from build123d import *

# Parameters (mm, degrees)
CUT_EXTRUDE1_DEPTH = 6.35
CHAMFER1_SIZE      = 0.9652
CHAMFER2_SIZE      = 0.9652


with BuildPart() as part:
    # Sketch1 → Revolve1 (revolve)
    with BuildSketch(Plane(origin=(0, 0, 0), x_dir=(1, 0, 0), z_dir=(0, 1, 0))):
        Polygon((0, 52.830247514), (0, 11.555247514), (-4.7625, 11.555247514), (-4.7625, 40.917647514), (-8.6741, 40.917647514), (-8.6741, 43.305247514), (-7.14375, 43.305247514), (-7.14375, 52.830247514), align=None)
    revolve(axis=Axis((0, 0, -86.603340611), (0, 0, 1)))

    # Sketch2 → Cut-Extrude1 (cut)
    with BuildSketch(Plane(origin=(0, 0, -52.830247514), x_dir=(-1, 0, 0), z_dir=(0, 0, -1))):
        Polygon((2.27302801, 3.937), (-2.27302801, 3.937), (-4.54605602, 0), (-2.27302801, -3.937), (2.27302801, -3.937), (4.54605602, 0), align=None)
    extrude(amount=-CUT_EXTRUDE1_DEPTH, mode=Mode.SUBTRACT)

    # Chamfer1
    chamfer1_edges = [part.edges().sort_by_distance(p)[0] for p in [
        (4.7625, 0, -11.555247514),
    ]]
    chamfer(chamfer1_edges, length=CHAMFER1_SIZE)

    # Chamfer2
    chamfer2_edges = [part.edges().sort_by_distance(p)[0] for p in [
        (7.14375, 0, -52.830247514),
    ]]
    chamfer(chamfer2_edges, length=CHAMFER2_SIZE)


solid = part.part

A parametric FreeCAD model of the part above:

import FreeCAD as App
import Part
import Sketcher

V = App.Vector
Q = App.Units.Quantity


def edges_at(feature, points):
    """Names of the edges that pass closest to the given points."""
    edges = feature.Shape.Edges
    near = lambda p: min(range(len(edges)), key=lambda i: edges[i].distToShape(Part.Vertex(*p))[0])
    return sorted({f"Edge{near(p) + 1}" for p in points})


def add_polygon(sketch, points):
    """Adds a closed chain of lines whose ends are joined by coincident constraints."""
    first, n = sketch.GeometryCount, len(points)
    for a, b in zip(points, points[1:] + points[:1]):
        sketch.addGeometry(Part.LineSegment(App.Vector(*a, 0), App.Vector(*b, 0)), False)
    for i in range(n):
        sketch.addConstraint(Sketcher.Constraint("Coincident", first + i, 2, first + (i + 1) % n, 1))

doc = App.newDocument("Part")
params = doc.addObject("Spreadsheet::Sheet", "Params")
for row, (alias, value) in enumerate([
    ("sketch1_width", "0.28125 in"),
    ("sketch1_width2", "0.154 in"),
    ("sketch1_width3", "0.1875 in"),
    ("sketch1_height", "1.625 in"),
    ("sketch1_height2", "0.375 in"),
    ("revolution_angle", "360 deg"),
    ("pocket1_length", "0.25 in"),
    ("chamfer_size", "0.038 in"),
    ("chamfer2_size", "0.038 in"),
], start=1):
    params.set(f"A{row}", alias)
    params.set(f"B{row}", "=" + value)
    params.setAlias(f"B{row}", alias)

body = doc.addObject("PartDesign::Body", "Body")

sketch1 = body.newObject("Sketcher::SketchObject", "Sketch")
sketch1.AttachmentSupport = (doc.getObject("XZ_Plane"), [""])
sketch1.MapMode = "FlatFace"
add_polygon(sketch1, [(0, -11.6), (0, -52.8), (-7.1, -52.8), (-7.1, -43.3), (-8.7, -43.3), (-8.7, -40.9), (-4.8, -40.9), (-4.8, -11.6)])
sketch1.addConstraint([
    Sketcher.Constraint("Vertical", 0),
    Sketcher.Constraint("Horizontal", 1),
    Sketcher.Constraint("Vertical", 2),
    Sketcher.Constraint("Horizontal", 3),
    Sketcher.Constraint("Vertical", 4),
    Sketcher.Constraint("Horizontal", 5),
    Sketcher.Constraint("Vertical", 6),
    Sketcher.Constraint("Horizontal", 7),
    Sketcher.Constraint("PointOnObject", 0, 2, -2),
    Sketcher.Constraint("DistanceX", 1, 2, 1, 1, Q("0.28125 in")),
    Sketcher.Constraint("DistanceX", 5, 1, 5, 2, Q("0.154 in")),
    Sketcher.Constraint("DistanceX", 7, 1, 7, 2, Q("0.1875 in")),
    Sketcher.Constraint("DistanceY", 0, 2, 0, 1, Q("1.625 in")),
    Sketcher.Constraint("DistanceY", 2, 1, 2, 2, Q("0.375 in")),
    Sketcher.Constraint("DistanceY", 4, 1, 4, 2, Q("0.094 in")),
    Sketcher.Constraint("DistanceY", 0, 2, -1, 1, 52.830248),
])
sketch1.setExpression("Constraints[17]", "Params.sketch1_width")
sketch1.setExpression("Constraints[18]", "Params.sketch1_width2")
sketch1.setExpression("Constraints[19]", "Params.sketch1_width3")
sketch1.setExpression("Constraints[20]", "Params.sketch1_height")
sketch1.setExpression("Constraints[21]", "Params.sketch1_height2")
revolution = body.newObject("PartDesign::Revolution", "Revolution")
revolution.Profile = sketch1
revolution.ReferenceAxis = (sketch1, ["V_Axis"])
revolution.setExpression("Angle", "Params.revolution_angle")

sketch2 = body.newObject("Sketcher::SketchObject", "Sketch001")
sketch2.AttachmentSupport = (doc.getObject("XY_Plane"), [""])
sketch2.MapMode = "FlatFace"
sketch2.AttachmentOffset = App.Placement(V(0, 0, -52.830248), App.Rotation())
add_polygon(sketch2, [(-2.3, 3.9), (2.3, 3.9), (4.5, 0), (2.3, -3.9), (-2.3, -3.9), (-4.5, 0)])
sketch2.addConstraint([
    Sketcher.Constraint("Horizontal", 0),
    Sketcher.Constraint("Horizontal", 3),
    Sketcher.Constraint("Symmetric", 0, 2, 3, 2, -1, 1),
    Sketcher.Constraint("Symmetric", 1, 2, 4, 2, -1, 1),
    Sketcher.Constraint("PointOnObject", 1, 2, -1),
    Sketcher.Constraint("Parallel", 2, 5),
    Sketcher.Constraint("Vertical", 0, 2, 2, 2),
    Sketcher.Constraint("Angle", 1, Q("-60 deg")),
    Sketcher.Constraint("DistanceY", 2, 2, 0, 2, Q("0.31 in")),
    Sketcher.Constraint("DistanceX", 0, 1, 0, 2, 4.546056),
])
pocket1 = body.newObject("PartDesign::Pocket", "Pocket")
pocket1.Profile = sketch2
pocket1.setExpression("Length", "Params.pocket1_length")
pocket1.Reversed = True
doc.recompute()

chamfer = body.newObject("PartDesign::Chamfer", "Chamfer")
chamfer.Base = (pocket1, edges_at(pocket1, [(4.763, 0, -11.555)]))
chamfer.setExpression("Size", "Params.chamfer_size")
doc.recompute()

chamfer2 = body.newObject("PartDesign::Chamfer", "Chamfer001")
chamfer2.Base = (chamfer, edges_at(chamfer, [(7.144, 0, -52.83)]))
chamfer2.setExpression("Size", "Params.chamfer2_size")

doc.recompute()
